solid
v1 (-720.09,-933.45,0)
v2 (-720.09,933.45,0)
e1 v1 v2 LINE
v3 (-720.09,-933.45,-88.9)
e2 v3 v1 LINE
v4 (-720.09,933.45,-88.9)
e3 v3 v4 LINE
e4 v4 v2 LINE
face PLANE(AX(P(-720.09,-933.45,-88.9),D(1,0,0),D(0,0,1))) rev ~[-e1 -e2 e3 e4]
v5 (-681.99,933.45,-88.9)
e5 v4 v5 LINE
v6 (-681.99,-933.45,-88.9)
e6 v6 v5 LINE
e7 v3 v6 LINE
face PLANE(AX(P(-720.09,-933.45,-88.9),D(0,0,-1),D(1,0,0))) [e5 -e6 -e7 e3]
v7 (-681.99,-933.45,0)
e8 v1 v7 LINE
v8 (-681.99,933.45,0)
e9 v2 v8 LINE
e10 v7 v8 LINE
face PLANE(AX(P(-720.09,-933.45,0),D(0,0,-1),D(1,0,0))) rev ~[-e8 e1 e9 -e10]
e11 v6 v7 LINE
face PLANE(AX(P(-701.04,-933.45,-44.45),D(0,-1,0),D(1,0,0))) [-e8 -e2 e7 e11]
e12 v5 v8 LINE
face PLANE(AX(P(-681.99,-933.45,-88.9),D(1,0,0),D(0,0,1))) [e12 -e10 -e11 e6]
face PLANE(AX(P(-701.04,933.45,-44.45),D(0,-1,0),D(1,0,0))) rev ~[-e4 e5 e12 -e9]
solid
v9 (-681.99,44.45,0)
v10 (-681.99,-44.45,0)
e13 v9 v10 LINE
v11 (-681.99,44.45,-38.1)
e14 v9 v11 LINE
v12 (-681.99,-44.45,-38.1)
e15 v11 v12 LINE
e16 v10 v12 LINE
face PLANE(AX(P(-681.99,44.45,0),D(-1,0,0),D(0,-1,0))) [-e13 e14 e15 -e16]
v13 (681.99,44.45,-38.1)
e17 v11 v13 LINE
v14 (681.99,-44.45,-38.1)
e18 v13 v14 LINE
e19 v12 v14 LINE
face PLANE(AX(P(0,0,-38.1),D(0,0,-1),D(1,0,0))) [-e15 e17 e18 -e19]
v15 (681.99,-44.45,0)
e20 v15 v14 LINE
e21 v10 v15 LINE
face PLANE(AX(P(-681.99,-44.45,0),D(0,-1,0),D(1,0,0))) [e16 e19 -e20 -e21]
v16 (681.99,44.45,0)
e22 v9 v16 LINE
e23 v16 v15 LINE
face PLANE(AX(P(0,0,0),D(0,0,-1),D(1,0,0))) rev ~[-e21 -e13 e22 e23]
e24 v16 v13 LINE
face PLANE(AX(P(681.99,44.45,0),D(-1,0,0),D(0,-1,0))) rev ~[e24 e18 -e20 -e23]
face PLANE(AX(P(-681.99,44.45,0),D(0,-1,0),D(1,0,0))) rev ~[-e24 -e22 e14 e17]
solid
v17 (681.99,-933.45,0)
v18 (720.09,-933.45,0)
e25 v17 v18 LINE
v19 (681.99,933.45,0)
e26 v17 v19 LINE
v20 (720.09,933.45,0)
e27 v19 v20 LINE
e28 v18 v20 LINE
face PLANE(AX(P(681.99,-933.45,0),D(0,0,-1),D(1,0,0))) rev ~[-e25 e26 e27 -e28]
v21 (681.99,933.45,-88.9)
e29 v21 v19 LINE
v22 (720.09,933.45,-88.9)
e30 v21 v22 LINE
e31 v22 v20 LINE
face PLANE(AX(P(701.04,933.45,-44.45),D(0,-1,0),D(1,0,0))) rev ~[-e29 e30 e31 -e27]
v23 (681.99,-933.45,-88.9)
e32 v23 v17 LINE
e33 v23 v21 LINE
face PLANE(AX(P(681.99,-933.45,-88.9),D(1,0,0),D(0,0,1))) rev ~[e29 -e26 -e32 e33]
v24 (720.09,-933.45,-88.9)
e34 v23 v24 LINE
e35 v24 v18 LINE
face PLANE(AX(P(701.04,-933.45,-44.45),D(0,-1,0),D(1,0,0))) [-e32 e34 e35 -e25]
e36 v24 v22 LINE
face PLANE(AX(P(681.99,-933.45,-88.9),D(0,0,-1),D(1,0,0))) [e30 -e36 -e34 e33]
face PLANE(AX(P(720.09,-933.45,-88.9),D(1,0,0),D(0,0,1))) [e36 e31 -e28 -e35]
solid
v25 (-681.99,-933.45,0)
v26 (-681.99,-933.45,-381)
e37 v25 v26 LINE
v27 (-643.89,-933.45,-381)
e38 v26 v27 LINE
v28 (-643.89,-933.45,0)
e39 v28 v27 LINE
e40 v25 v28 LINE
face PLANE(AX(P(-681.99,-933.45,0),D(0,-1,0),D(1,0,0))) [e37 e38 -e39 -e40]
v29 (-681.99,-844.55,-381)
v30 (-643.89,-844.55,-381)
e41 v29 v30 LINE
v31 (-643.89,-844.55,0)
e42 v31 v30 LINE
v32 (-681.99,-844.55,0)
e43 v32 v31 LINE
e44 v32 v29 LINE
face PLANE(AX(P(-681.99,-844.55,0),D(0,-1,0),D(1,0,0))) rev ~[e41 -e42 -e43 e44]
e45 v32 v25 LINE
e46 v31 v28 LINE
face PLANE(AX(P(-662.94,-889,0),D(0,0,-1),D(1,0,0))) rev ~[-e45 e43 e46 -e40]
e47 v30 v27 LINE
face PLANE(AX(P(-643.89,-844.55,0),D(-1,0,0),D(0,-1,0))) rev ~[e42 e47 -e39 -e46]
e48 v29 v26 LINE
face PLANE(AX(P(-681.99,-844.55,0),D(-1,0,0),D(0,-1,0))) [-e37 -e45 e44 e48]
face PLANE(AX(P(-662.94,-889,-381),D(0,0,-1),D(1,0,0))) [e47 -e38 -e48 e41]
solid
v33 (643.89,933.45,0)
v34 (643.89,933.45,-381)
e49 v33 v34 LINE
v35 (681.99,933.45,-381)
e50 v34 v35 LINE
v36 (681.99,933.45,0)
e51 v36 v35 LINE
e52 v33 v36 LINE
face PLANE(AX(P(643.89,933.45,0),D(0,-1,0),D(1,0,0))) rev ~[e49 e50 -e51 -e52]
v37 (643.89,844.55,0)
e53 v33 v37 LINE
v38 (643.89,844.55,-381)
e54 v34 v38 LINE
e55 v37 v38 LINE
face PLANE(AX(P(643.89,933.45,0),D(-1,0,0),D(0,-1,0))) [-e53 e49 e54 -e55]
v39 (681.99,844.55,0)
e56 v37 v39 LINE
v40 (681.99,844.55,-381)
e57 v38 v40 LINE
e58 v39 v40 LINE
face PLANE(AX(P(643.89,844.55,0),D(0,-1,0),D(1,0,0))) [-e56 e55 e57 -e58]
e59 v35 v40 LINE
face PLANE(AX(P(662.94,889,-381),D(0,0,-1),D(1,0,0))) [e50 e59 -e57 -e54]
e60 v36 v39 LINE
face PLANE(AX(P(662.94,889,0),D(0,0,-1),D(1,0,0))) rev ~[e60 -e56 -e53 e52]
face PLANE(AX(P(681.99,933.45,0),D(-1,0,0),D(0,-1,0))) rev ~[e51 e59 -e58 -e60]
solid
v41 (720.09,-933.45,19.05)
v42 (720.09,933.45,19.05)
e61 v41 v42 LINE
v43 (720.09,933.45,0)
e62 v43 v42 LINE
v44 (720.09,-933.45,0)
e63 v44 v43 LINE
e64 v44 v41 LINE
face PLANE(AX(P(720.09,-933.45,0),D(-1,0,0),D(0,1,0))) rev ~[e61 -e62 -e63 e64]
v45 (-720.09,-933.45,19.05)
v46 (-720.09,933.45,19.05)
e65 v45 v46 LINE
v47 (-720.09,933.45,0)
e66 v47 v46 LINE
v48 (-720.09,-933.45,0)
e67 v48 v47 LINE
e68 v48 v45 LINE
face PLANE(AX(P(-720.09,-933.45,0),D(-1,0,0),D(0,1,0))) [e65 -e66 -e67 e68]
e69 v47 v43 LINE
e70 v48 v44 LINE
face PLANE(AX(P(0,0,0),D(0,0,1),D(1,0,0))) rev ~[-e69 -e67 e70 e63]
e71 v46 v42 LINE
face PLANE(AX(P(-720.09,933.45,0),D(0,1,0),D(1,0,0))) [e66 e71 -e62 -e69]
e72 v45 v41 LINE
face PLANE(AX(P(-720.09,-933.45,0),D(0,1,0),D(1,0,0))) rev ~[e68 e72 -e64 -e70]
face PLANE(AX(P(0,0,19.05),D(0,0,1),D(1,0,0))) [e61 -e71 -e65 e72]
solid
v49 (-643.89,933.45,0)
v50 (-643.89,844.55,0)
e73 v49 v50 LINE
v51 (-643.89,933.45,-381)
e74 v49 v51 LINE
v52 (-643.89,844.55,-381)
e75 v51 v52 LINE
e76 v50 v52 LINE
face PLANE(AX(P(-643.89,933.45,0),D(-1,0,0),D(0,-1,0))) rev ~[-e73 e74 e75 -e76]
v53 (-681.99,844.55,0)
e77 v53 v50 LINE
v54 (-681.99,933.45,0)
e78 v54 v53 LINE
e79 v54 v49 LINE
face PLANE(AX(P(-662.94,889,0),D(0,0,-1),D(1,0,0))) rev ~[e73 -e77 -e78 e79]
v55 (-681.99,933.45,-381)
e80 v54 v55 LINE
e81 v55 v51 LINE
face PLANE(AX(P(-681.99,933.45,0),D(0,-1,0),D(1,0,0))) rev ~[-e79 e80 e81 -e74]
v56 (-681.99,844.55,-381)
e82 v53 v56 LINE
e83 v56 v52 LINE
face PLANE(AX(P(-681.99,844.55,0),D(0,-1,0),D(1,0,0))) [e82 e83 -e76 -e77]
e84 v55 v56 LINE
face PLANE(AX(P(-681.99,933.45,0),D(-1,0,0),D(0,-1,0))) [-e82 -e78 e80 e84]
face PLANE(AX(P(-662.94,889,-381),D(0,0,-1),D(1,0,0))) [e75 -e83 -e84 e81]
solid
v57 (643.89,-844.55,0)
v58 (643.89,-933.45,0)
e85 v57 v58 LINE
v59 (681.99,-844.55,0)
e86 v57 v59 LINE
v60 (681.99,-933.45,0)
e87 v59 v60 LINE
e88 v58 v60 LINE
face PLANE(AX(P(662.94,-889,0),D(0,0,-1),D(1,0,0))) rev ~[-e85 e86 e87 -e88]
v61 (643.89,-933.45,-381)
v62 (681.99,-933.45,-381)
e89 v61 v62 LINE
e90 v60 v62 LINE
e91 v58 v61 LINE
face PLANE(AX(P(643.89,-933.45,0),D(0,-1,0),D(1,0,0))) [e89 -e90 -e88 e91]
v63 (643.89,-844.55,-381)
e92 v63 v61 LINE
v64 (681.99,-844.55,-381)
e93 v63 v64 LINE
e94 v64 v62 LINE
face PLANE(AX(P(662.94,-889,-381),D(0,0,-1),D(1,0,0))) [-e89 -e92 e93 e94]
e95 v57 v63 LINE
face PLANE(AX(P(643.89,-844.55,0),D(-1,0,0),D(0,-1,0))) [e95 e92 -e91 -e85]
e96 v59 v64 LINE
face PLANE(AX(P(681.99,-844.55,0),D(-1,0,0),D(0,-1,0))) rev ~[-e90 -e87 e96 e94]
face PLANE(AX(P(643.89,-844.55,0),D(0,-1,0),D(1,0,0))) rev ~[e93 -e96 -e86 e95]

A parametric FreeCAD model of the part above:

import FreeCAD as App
import Part
import Sketcher
from FreeCAD import Vector
Q = App.Units.Quantity

doc = App.newDocument("Part")
body = doc.addObject("PartDesign::Body", "Body")

# Sketch on XY plane
sketch1 = doc.addObject("Sketcher::SketchObject", "Sketch")
body.addObject(sketch1)
sketch1.AttachmentSupport = (doc.XY_Plane, [""])
sketch1.MapMode = "FlatFace"
sketch1.addGeometry(Part.LineSegment(Vector(-720.09, 933.45, 0), Vector(-720.09, -933.45, 0)), False)
sketch1.addGeometry(Part.LineSegment(Vector(-720.09, -933.45, 0), Vector(720.09, -933.45, 0)), False)
sketch1.addGeometry(Part.LineSegment(Vector(720.09, -933.45, 0), Vector(720.09, 933.45, 0)), False)
sketch1.addGeometry(Part.LineSegment(Vector(720.09, 933.45, 0), Vector(-720.09, 933.45, 0)), False)
sketch1.addConstraint(Sketcher.Constraint("Coincident", 0, 2, 1, 1))
sketch1.addConstraint(Sketcher.Constraint("Coincident", 1, 2, 2, 1))
sketch1.addConstraint(Sketcher.Constraint("Coincident", 2, 2, 3, 1))
sketch1.addConstraint(Sketcher.Constraint("Coincident", 3, 2, 0, 1))
sketch1.addConstraint(Sketcher.Constraint("Vertical", 0))
sketch1.addConstraint(Sketcher.Constraint("Horizontal", 1))
sketch1.addConstraint(Sketcher.Constraint("Vertical", 2))
sketch1.addConstraint(Sketcher.Constraint("Horizontal", 3))
sketch1.addConstraint(Sketcher.Constraint("Symmetric", 0, 2, 2, 2, -1, 1))
sketch1.addConstraint(Sketcher.Constraint("DistanceX", 1, 1, 1, 2, Q("56.7 in")))
sketch1.addConstraint(Sketcher.Constraint("DistanceY", 0, 2, 0, 1, Q("73.5 in")))
pad1 = doc.addObject("PartDesign::Pad", "Pad")
body.addObject(pad1)
pad1.Profile = sketch1
pad1.Length = Q("0.75 in")
body2 = doc.addObject("PartDesign::Body", "Body001")
body2.AllowCompound = True

# Sketch on XZ plane
sketch2 = doc.addObject("Sketcher::SketchObject", "Sketch001")
body2.addObject(sketch2)
sketch2.AttachmentSupport = (doc.getObject("XZ_Plane001"), [""])
sketch2.MapMode = "FlatFace"
sketch2.AttachmentOffset = App.Placement(Vector(0, 0, 36.75 * 25.4), App.Rotation())
sketch2.addGeometry(Part.LineSegment(Vector(681.99, 0, 0), Vector(681.99, -88.9, 0)), False)
sketch2.addGeometry(Part.LineSegment(Vector(681.99, -88.9, 0), Vector(720.09, -88.9, 0)), False)
sketch2.addGeometry(Part.LineSegment(Vector(720.09, -88.9, 0), Vector(720.09, 0, 0)), False)
sketch2.addGeometry(Part.LineSegment(Vector(720.09, 0, 0), Vector(681.99, 0, 0)), False)
sketch2.addGeometry(Part.LineSegment(Vector(-720.09, 0, 0), Vector(-720.09, -88.9, 0)), False)
sketch2.addGeometry(Part.LineSegment(Vector(-720.09, -88.9, 0), Vector(-681.99, -88.9, 0)), False)
sketch2.addGeometry(Part.LineSegment(Vector(-681.99, -88.9, 0), Vector(-681.99, 0, 0)), False)
sketch2.addGeometry(Part.LineSegment(Vector(-681.99, 0, 0), Vector(-720.09, 0, 0)), False)
sketch2.addConstraint(Sketcher.Constraint("Coincident", 0, 2, 1, 1))
sketch2.addConstraint(Sketcher.Constraint("Coincident", 1, 2, 2, 1))
sketch2.addConstraint(Sketcher.Constraint("Coincident", 2, 2, 3, 1))
sketch2.addConstraint(Sketcher.Constraint("Coincident", 3, 2, 0, 1))
sketch2.addConstraint(Sketcher.Constraint("Coincident", 4, 2, 5, 1))
sketch2.addConstraint(Sketcher.Constraint("Coincident", 5, 2, 6, 1))
sketch2.addConstraint(Sketcher.Constraint("Coincident", 6, 2, 7, 1))
sketch2.addConstraint(Sketcher.Constraint("Coincident", 7, 2, 4, 1))
sketch2.addConstraint(Sketcher.Constraint("Vertical", 0))
sketch2.addConstraint(Sketcher.Constraint("Horizontal", 1))
sketch2.addConstraint(Sketcher.Constraint("Vertical", 2))
sketch2.addConstraint(Sketcher.Constraint("Horizontal", 3))
sketch2.addConstraint(Sketcher.Constraint("Vertical", 4))
sketch2.addConstraint(Sketcher.Constraint("Horizontal", 5))
sketch2.addConstraint(Sketcher.Constraint("Vertical", 6))
sketch2.addConstraint(Sketcher.Constraint("Horizontal", 7))
sketch2.addConstraint(Sketcher.Constraint("Symmetric", 3, 2, 6, 2, -1, 1))
sketch2.addConstraint(Sketcher.Constraint("Symmetric", 1, 2, 4, 2, -2))
sketch2.addConstraint(Sketcher.Constraint("PointOnObject", 2, 2, -1))
sketch2.addConstraint(Sketcher.Constraint("DistanceX", 1, 1, 1, 2, Q("1.5 in")))
sketch2.addConstraint(Sketcher.Constraint("DistanceY", 0, 2, 0, 1, Q("3.5 in")))
sketch2.addConstraint(Sketcher.Constraint("DistanceX", 4, 2, 0, 2, Q("55.2 in")))
pad2 = doc.addObject("PartDesign::Pad", "Pad001")
body2.addObject(pad2)
pad2.Profile = sketch2
pad2.Length = Q("73.5 in")
pad2.Reversed = True
body3 = doc.addObject("PartDesign::Body", "Body002")
body3.AllowCompound = True

# Sketch on XY plane
sketch3 = doc.addObject("Sketcher::SketchObject", "Sketch002")
body3.addObject(sketch3)
sketch3.AttachmentSupport = (doc.getObject("XY_Plane002"), [""])
sketch3.MapMode = "FlatFace"
sketch3.addGeometry(Part.LineSegment(Vector(-681.99, -933.45, 0), Vector(-681.99, -844.55, 0)), False)
sketch3.addGeometry(Part.LineSegment(Vector(-681.99, -844.55, 0), Vector(-643.89, -844.55, 0)), False)
sketch3.addGeometry(Part.LineSegment(Vector(-643.89, -844.55, 0), Vector(-643.89, -933.45, 0)), False)
sketch3.addGeometry(Part.LineSegment(Vector(-643.89, -933.45, 0), Vector(-681.99, -933.45, 0)), False)
sketch3.addGeometry(Part.LineSegment(Vector(643.89, -933.45, 0), Vector(643.89, -844.55, 0)), False)
sketch3.addGeometry(Part.LineSegment(Vector(643.89, -844.55, 0), Vector(681.99, -844.55, 0)), False)
sketch3.addGeometry(Part.LineSegment(Vector(681.99, -844.55, 0), Vector(681.99, -933.45, 0)), False)
sketch3.addGeometry(Part.LineSegment(Vector(681.99, -933.45, 0), Vector(643.89, -933.45, 0)), False)
sketch3.addGeometry(Part.LineSegment(Vector(-681.99, 844.55, 0), Vector(-681.99, 933.45, 0)), False)
sketch3.addGeometry(Part.LineSegment(Vector(-681.99, 933.45, 0), Vector(-643.89, 933.45, 0)), False)
sketch3.addGeometry(Part.LineSegment(Vector(-643.89, 933.45, 0), Vector(-643.89, 844.55, 0)), False)
sketch3.addGeometry(Part.LineSegment(Vector(-643.89, 844.55, 0), Vector(-681.99, 844.55, 0)), False)
sketch3.addGeometry(Part.LineSegment(Vector(643.89, 844.55, 0), Vector(643.89, 933.45, 0)), False)
sketch3.addGeometry(Part.LineSegment(Vector(643.89, 933.45, 0), Vector(681.99, 933.45, 0)), False)
sketch3.addGeometry(Part.LineSegment(Vector(681.99, 933.45, 0), Vector(681.99, 844.55, 0)), False)
sketch3.addGeometry(Part.LineSegment(Vector(681.99, 844.55, 0), Vector(643.89, 844.55, 0)), False)
sketch3.addConstraint(Sketcher.Constraint("Coincident", 0, 2, 1, 1))
sketch3.addConstraint(Sketcher.Constraint("Coincident", 1, 2, 2, 1))
sketch3.addConstraint(Sketcher.Constraint("Coincident", 2, 2, 3, 1))
sketch3.addConstraint(Sketcher.Constraint("Coincident", 3, 2, 0, 1))
sketch3.addConstraint(Sketcher.Constraint("Coincident", 4, 2, 5, 1))
sketch3.addConstraint(Sketcher.Constraint("Coincident", 5, 2, 6, 1))
sketch3.addConstraint(Sketcher.Constraint("Coincident", 6, 2, 7, 1))
sketch3.addConstraint(Sketcher.Constraint("Coincident", 7, 2, 4, 1))
sketch3.addConstraint(Sketcher.Constraint("Coincident", 8, 2, 9, 1))
sketch3.addConstraint(Sketcher.Constraint("Coincident", 9, 2, 10, 1))
sketch3.addConstraint(Sketcher.Constraint("Coincident", 10, 2, 11, 1))
sketch3.addConstraint(Sketcher.Constraint("Coincident", 11, 2, 8, 1))
sketch3.addConstraint(Sketcher.Constraint("Coincident", 12, 2, 13, 1))
sketch3.addConstraint(Sketcher.Constraint("Coincident", 13, 2, 14, 1))
sketch3.addConstraint(Sketcher.Constraint("Coincident", 14, 2, 15, 1))
sketch3.addConstraint(Sketcher.Constraint("Coincident", 15, 2, 12, 1))
sketch3.addConstraint(Sketcher.Constraint("Vertical", 0))
sketch3.addConstraint(Sketcher.Constraint("Horizontal", 1))
sketch3.addConstraint(Sketcher.Constraint("Vertical", 2))
sketch3.addConstraint(Sketcher.Constraint("Horizontal", 3))
sketch3.addConstraint(Sketcher.Constraint("Vertical", 4))
sketch3.addConstraint(Sketcher.Constraint("Horizontal", 5))
sketch3.addConstraint(Sketcher.Constraint("Vertical", 6))
sketch3.addConstraint(Sketcher.Constraint("Horizontal", 7))
sketch3.addConstraint(Sketcher.Constraint("Vertical", 8))
sketch3.addConstraint(Sketcher.Constraint("Horizontal", 9))
sketch3.addConstraint(Sketcher.Constraint("Vertical", 10))
sketch3.addConstraint(Sketcher.Constraint("Horizontal", 11))
sketch3.addConstraint(Sketcher.Constraint("Vertical", 12))
sketch3.addConstraint(Sketcher.Constraint("Horizontal", 13))
sketch3.addConstraint(Sketcher.Constraint("Vertical", 14))
sketch3.addConstraint(Sketcher.Constraint("Horizontal", 15))
sketch3.addConstraint(Sketcher.Constraint("Symmetric", 6, 2, 8, 2, -1, 1))
sketch3.addConstraint(Sketcher.Constraint("Symmetric", 4, 2, 10, 2, -1, 1))
sketch3.addConstraint(Sketcher.Constraint("Symmetric", 2, 2, 12, 2, -1, 1))
sketch3.addConstraint(Sketcher.Constraint("Symmetric", 0, 2, 14, 2, -1, 1))
sketch3.addConstraint(Sketcher.Constraint("Symmetric", 1, 2, 4, 2, -2))
sketch3.addConstraint(Sketcher.Constraint("Symmetric", 3, 2, 6, 2, -2))
sketch3.addConstraint(Sketcher.Constraint("DistanceX", 1, 1, 1, 2, Q("1.5 in")))
sketch3.addConstraint(Sketcher.Constraint("DistanceY", 0, 1, 0, 2, Q("3.5 in")))
sketch3.addConstraint(Sketcher.Constraint("DistanceY", 0, 2, 8, 2, Q("70 in")))
sketch3.addConstraint(Sketcher.Constraint("DistanceX", 1, 2, 4, 2, Q("50.7 in")))
pad3 = doc.addObject("PartDesign::Pad", "Pad002")
body3.addObject(pad3)
pad3.Profile = sketch3
pad3.Length = Q("15 in")
pad3.Reversed = True
body4 = doc.addObject("PartDesign::Body", "Body003")

# Sketch on XY plane
sketch4 = doc.addObject("Sketcher::SketchObject", "Sketch003")
body4.addObject(sketch4)
sketch4.AttachmentSupport = (doc.getObject("XY_Plane003"), [""])
sketch4.MapMode = "FlatFace"
sketch4.addGeometry(Part.LineSegment(Vector(-681.99, -44.45, 0), Vector(-681.99, 44.45, 0)), False)
sketch4.addGeometry(Part.LineSegment(Vector(-681.99, 44.45, 0), Vector(681.99, 44.45, 0)), False)
sketch4.addGeometry(Part.LineSegment(Vector(681.99, 44.45, 0), Vector(681.99, -44.45, 0)), False)
sketch4.addGeometry(Part.LineSegment(Vector(681.99, -44.45, 0), Vector(-681.99, -44.45, 0)), False)
sketch4.addConstraint(Sketcher.Constraint("Coincident", 0, 2, 1, 1))
sketch4.addConstraint(Sketcher.Constraint("Coincident", 1, 2, 2, 1))
sketch4.addConstraint(Sketcher.Constraint("Coincident", 2, 2, 3, 1))
sketch4.addConstraint(Sketcher.Constraint("Coincident", 3, 2, 0, 1))
sketch4.addConstraint(Sketcher.Constraint("Vertical", 0))
sketch4.addConstraint(Sketcher.Constraint("Horizontal", 1))
sketch4.addConstraint(Sketcher.Constraint("Vertical", 2))
sketch4.addConstraint(Sketcher.Constraint("Horizontal", 3))
sketch4.addConstraint(Sketcher.Constraint("Symmetric", 0, 2, 2, 2, -1, 1))
sketch4.addConstraint(Sketcher.Constraint("DistanceX", 1, 1, 1, 2, Q("53.7 in")))
sketch4.addConstraint(Sketcher.Constraint("DistanceY", 0, 1, 0, 2, Q("3.5 in")))
pad4 = doc.addObject("PartDesign::Pad", "Pad003")
body4.addObject(pad4)
pad4.Profile = sketch4
pad4.Length = Q("1.5 in")
pad4.Reversed = True

doc.recompute()
